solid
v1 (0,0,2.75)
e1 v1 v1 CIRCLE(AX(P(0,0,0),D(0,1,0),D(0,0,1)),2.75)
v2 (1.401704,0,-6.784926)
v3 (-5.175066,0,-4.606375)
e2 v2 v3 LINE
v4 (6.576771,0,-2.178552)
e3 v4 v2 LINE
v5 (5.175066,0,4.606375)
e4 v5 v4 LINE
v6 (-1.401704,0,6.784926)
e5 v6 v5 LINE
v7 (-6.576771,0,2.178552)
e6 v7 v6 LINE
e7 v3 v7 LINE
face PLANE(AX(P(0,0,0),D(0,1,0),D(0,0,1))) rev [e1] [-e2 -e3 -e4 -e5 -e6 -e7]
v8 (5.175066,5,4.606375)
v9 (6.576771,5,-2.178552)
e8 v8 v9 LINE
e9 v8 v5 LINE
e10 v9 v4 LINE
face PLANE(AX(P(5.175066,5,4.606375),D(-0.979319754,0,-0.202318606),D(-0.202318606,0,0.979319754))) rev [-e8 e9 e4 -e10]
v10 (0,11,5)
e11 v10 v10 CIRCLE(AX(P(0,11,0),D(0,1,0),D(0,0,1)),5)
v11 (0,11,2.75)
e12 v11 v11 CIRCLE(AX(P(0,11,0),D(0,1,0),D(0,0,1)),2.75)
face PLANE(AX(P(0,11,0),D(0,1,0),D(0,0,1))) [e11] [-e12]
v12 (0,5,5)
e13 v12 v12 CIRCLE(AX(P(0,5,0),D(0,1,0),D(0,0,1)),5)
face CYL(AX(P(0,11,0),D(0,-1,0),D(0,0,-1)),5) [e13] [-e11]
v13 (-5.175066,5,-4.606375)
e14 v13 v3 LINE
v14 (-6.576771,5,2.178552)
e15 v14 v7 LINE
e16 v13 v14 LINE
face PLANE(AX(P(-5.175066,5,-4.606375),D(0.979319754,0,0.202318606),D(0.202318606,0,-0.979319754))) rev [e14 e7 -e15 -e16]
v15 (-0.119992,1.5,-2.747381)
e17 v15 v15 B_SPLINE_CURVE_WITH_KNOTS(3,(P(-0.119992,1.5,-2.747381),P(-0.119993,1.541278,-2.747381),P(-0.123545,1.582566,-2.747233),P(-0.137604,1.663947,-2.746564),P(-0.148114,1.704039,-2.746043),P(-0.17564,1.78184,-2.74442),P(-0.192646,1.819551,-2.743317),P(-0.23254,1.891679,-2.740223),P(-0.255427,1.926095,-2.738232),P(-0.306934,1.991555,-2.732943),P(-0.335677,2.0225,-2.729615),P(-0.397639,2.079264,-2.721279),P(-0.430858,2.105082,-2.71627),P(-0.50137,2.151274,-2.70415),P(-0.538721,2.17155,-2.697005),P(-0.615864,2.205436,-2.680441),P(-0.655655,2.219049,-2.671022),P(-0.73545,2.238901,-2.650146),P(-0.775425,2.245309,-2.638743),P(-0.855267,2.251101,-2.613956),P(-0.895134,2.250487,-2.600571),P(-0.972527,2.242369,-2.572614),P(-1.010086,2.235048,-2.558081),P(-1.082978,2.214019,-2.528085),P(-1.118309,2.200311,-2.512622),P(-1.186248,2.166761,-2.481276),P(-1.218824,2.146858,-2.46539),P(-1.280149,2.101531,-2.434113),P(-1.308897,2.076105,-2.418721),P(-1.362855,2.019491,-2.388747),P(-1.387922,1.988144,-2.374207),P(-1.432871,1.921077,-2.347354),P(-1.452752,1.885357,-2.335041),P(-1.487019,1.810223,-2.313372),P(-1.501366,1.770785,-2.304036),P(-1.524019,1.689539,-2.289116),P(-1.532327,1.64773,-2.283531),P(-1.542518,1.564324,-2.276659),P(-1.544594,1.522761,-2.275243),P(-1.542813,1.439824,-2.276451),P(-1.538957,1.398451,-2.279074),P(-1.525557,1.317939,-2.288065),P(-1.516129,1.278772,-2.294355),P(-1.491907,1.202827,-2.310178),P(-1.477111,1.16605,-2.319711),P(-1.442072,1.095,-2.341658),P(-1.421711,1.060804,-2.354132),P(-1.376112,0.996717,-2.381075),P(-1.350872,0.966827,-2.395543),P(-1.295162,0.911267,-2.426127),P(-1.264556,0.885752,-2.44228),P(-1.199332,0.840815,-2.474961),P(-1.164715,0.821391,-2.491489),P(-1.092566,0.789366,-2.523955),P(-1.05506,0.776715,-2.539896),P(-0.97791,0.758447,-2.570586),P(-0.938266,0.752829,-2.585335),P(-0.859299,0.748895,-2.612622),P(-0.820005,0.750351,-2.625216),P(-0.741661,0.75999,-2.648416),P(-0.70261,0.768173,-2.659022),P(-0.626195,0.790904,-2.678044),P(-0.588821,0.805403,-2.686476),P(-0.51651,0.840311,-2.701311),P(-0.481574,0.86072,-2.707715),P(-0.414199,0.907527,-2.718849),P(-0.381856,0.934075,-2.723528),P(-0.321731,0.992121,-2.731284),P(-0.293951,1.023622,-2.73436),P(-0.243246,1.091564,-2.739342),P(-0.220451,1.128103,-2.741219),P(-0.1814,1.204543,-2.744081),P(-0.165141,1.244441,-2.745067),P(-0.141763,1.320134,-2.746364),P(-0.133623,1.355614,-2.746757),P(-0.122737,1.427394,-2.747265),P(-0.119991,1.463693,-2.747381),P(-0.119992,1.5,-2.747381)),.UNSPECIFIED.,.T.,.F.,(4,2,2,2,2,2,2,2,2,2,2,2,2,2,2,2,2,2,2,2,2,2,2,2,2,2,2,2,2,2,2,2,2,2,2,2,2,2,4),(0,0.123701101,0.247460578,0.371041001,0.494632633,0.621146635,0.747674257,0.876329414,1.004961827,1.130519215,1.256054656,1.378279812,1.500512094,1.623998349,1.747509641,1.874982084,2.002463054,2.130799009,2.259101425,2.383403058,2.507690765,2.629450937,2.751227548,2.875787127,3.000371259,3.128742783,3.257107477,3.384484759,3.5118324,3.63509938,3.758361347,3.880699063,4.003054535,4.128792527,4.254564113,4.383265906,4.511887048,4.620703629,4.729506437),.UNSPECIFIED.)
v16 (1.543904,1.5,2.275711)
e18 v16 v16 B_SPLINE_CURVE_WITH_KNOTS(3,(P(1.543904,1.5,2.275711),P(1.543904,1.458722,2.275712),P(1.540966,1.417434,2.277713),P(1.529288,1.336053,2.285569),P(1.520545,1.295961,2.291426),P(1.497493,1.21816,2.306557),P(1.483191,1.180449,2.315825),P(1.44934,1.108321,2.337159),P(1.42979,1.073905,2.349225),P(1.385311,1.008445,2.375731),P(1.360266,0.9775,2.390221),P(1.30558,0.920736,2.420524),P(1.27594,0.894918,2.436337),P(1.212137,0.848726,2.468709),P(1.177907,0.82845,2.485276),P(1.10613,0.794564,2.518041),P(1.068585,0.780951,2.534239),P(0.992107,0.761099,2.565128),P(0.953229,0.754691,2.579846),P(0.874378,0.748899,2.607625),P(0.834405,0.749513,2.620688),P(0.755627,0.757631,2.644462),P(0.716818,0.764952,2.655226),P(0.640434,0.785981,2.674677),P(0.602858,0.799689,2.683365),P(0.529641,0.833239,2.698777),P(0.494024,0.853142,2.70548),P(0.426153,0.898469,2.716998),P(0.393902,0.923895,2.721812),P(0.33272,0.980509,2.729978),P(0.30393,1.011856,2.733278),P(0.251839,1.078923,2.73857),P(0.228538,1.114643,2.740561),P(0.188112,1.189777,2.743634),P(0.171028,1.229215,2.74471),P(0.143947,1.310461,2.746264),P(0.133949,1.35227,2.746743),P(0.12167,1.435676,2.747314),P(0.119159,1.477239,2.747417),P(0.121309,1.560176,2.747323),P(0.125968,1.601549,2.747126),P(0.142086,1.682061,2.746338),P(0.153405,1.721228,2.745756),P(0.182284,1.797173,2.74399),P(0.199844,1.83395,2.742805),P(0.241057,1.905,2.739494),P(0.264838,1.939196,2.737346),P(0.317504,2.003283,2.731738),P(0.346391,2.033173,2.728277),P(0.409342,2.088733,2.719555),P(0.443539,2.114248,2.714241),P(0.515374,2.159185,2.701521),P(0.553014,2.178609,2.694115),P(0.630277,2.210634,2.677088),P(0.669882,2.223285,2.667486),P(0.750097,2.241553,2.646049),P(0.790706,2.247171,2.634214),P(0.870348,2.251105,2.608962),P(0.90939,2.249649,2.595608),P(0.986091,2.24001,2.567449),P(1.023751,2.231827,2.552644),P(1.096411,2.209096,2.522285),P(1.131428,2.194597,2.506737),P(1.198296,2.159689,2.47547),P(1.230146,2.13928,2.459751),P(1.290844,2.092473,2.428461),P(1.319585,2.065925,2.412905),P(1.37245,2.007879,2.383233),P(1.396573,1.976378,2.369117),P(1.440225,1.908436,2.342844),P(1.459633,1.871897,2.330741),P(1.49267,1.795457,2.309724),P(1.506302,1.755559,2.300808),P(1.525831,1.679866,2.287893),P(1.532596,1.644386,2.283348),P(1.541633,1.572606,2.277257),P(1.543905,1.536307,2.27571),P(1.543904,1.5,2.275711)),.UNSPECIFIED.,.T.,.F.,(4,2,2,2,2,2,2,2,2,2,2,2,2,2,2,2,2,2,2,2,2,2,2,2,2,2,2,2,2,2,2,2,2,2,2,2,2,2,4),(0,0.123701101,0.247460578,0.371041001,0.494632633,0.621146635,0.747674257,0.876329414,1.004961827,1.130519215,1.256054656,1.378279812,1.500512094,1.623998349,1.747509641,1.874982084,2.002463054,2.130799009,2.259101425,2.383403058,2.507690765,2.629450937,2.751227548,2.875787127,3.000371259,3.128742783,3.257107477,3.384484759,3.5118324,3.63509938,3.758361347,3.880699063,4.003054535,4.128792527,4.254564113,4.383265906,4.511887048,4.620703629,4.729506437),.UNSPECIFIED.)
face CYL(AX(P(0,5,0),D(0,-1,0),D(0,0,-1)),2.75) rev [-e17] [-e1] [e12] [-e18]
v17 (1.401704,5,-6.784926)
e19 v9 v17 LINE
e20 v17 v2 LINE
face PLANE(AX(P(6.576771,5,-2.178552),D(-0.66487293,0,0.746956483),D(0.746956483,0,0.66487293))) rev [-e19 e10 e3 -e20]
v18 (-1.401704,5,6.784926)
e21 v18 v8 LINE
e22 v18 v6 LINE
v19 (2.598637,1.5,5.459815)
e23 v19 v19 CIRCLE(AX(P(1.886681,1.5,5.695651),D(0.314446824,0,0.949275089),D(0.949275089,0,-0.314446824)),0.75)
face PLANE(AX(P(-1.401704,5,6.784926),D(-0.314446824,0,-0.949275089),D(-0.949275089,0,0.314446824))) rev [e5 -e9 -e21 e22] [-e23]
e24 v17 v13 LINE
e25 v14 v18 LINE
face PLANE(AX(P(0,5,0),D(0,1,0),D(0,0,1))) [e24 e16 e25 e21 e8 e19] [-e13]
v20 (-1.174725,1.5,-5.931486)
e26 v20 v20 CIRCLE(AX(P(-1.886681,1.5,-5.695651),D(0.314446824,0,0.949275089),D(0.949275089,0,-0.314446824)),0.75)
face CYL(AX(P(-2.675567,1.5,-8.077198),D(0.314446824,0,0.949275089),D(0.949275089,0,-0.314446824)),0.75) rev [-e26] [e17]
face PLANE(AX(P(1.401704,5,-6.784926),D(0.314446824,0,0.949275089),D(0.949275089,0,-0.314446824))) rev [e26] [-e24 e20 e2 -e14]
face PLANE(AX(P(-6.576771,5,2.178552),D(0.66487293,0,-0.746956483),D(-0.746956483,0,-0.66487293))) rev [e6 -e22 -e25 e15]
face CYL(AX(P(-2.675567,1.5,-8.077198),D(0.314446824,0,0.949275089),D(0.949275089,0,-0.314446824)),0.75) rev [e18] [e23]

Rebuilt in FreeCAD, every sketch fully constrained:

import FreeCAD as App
import Part
import Sketcher

V = App.Vector


def add_polygon(sketch, points):
    """Adds a closed chain of lines whose ends are joined by coincident constraints."""
    first, n = sketch.GeometryCount, len(points)
    for a, b in zip(points, points[1:] + points[:1]):
        sketch.addGeometry(Part.LineSegment(App.Vector(*a, 0), App.Vector(*b, 0)), False)
    for i in range(n):
        sketch.addConstraint(Sketcher.Constraint("Coincident", first + i, 2, first + (i + 1) % n, 1))

doc = App.newDocument("Part")
body = doc.addObject("PartDesign::Body", "Body")

# Sketch on XZ plane
sketch1 = body.newObject("Sketcher::SketchObject", "Sketch")
sketch1.AttachmentSupport = (doc.getObject("XZ_Plane"), [""])
sketch1.MapMode = "FlatFace"
add_polygon(sketch1, [(1.4, -6.8), (-5.2, -4.6), (-6.6, 2.2), (-1.4, 6.8), (5.2, 4.6), (6.6, -2.2)])  # lines 0-5
sketch1.addGeometry(Part.Circle(V(0, 0, 0), V(0, 0, 1), 2.8), False)  # 6
sketch1.addConstraint(Sketcher.Constraint("Coincident", 6, 3, -1, 1))
sketch1.addConstraint(Sketcher.Constraint("Symmetric", 0, 2, 3, 2, -1, 1))
sketch1.addConstraint(Sketcher.Constraint("Symmetric", 1, 2, 4, 2, -1, 1))
sketch1.addConstraint(Sketcher.Constraint("Symmetric", 2, 2, 5, 2, -1, 1))
sketch1.addConstraint(Sketcher.Constraint("Equal", 0, 1))
sketch1.addConstraint(Sketcher.Constraint("Equal", 1, 2))
sketch1.addConstraint(Sketcher.Constraint("Diameter", 6, 5.5))
sketch1.addConstraint(Sketcher.Constraint("DistanceY", 0, 2, 2, 2, 11.391301))
sketch1.addConstraint(Sketcher.Constraint("DistanceX", 1, 2, -1, 1, 6.576771))
sketch1.addConstraint(Sketcher.Constraint("DistanceY", -1, 1, 1, 2, 2.178552))
sketch1.addConstraint(Sketcher.Constraint("DistanceX", 0, 2, 2, 2, 3.773362))
pad1 = body.newObject("PartDesign::Pad", "Pad")
pad1.Profile = sketch1
pad1.Length = 5
pad1.Reversed = True

# Sketch on XZ plane
sketch2 = body.newObject("Sketcher::SketchObject", "Sketch001")
sketch2.AttachmentSupport = (doc.getObject("XZ_Plane"), [""])
sketch2.MapMode = "FlatFace"
sketch2.AttachmentOffset = App.Placement(V(0, 0, -5), App.Rotation())
sketch2.addGeometry(Part.Circle(V(0, 0, 0), V(0, 0, 1), 5), False)
sketch2.addGeometry(Part.Circle(V(0, 0, 0), V(0, 0, 1), 2.8), False)
sketch2.addConstraint(Sketcher.Constraint("Coincident", 0, 3, -1, 1))
sketch2.addConstraint(Sketcher.Constraint("Coincident", 1, 3, -1, 1))
sketch2.addConstraint(Sketcher.Constraint("Diameter", 0, 10.0))
sketch2.addConstraint(Sketcher.Constraint("Diameter", 1, 5.5))
pad2 = body.newObject("PartDesign::Pad", "Pad001")
pad2.Profile = sketch2
pad2.Length = 6
pad2.Reversed = True

# Sketch on an angled plane
sketch3 = body.newObject("Sketcher::SketchObject", "Sketch002")
sketch3.Placement = App.Placement(V(1.886681, 0, 5.695651), App.Rotation(V(0.949275089, 0, -0.314446824), V(0, 1, 0), V(0.314446824, 0, 0.949275089), "ZXY"))
sketch3.addGeometry(Part.Circle(V(0, 1.5, 0), V(0, 0, 1), 0.8), False)
sketch3.addConstraint(Sketcher.Constraint("PointOnObject", 0, 3, -2))
sketch3.addConstraint(Sketcher.Constraint("Diameter", 0, 1.5))
sketch3.addConstraint(Sketcher.Constraint("DistanceY", -1, 1, 0, 3, 1.5))
pocket1 = body.newObject("PartDesign::Pocket", "Pocket")
pocket1.Profile = sketch3
pocket1.Type = "ThroughAll"

doc.recompute()
